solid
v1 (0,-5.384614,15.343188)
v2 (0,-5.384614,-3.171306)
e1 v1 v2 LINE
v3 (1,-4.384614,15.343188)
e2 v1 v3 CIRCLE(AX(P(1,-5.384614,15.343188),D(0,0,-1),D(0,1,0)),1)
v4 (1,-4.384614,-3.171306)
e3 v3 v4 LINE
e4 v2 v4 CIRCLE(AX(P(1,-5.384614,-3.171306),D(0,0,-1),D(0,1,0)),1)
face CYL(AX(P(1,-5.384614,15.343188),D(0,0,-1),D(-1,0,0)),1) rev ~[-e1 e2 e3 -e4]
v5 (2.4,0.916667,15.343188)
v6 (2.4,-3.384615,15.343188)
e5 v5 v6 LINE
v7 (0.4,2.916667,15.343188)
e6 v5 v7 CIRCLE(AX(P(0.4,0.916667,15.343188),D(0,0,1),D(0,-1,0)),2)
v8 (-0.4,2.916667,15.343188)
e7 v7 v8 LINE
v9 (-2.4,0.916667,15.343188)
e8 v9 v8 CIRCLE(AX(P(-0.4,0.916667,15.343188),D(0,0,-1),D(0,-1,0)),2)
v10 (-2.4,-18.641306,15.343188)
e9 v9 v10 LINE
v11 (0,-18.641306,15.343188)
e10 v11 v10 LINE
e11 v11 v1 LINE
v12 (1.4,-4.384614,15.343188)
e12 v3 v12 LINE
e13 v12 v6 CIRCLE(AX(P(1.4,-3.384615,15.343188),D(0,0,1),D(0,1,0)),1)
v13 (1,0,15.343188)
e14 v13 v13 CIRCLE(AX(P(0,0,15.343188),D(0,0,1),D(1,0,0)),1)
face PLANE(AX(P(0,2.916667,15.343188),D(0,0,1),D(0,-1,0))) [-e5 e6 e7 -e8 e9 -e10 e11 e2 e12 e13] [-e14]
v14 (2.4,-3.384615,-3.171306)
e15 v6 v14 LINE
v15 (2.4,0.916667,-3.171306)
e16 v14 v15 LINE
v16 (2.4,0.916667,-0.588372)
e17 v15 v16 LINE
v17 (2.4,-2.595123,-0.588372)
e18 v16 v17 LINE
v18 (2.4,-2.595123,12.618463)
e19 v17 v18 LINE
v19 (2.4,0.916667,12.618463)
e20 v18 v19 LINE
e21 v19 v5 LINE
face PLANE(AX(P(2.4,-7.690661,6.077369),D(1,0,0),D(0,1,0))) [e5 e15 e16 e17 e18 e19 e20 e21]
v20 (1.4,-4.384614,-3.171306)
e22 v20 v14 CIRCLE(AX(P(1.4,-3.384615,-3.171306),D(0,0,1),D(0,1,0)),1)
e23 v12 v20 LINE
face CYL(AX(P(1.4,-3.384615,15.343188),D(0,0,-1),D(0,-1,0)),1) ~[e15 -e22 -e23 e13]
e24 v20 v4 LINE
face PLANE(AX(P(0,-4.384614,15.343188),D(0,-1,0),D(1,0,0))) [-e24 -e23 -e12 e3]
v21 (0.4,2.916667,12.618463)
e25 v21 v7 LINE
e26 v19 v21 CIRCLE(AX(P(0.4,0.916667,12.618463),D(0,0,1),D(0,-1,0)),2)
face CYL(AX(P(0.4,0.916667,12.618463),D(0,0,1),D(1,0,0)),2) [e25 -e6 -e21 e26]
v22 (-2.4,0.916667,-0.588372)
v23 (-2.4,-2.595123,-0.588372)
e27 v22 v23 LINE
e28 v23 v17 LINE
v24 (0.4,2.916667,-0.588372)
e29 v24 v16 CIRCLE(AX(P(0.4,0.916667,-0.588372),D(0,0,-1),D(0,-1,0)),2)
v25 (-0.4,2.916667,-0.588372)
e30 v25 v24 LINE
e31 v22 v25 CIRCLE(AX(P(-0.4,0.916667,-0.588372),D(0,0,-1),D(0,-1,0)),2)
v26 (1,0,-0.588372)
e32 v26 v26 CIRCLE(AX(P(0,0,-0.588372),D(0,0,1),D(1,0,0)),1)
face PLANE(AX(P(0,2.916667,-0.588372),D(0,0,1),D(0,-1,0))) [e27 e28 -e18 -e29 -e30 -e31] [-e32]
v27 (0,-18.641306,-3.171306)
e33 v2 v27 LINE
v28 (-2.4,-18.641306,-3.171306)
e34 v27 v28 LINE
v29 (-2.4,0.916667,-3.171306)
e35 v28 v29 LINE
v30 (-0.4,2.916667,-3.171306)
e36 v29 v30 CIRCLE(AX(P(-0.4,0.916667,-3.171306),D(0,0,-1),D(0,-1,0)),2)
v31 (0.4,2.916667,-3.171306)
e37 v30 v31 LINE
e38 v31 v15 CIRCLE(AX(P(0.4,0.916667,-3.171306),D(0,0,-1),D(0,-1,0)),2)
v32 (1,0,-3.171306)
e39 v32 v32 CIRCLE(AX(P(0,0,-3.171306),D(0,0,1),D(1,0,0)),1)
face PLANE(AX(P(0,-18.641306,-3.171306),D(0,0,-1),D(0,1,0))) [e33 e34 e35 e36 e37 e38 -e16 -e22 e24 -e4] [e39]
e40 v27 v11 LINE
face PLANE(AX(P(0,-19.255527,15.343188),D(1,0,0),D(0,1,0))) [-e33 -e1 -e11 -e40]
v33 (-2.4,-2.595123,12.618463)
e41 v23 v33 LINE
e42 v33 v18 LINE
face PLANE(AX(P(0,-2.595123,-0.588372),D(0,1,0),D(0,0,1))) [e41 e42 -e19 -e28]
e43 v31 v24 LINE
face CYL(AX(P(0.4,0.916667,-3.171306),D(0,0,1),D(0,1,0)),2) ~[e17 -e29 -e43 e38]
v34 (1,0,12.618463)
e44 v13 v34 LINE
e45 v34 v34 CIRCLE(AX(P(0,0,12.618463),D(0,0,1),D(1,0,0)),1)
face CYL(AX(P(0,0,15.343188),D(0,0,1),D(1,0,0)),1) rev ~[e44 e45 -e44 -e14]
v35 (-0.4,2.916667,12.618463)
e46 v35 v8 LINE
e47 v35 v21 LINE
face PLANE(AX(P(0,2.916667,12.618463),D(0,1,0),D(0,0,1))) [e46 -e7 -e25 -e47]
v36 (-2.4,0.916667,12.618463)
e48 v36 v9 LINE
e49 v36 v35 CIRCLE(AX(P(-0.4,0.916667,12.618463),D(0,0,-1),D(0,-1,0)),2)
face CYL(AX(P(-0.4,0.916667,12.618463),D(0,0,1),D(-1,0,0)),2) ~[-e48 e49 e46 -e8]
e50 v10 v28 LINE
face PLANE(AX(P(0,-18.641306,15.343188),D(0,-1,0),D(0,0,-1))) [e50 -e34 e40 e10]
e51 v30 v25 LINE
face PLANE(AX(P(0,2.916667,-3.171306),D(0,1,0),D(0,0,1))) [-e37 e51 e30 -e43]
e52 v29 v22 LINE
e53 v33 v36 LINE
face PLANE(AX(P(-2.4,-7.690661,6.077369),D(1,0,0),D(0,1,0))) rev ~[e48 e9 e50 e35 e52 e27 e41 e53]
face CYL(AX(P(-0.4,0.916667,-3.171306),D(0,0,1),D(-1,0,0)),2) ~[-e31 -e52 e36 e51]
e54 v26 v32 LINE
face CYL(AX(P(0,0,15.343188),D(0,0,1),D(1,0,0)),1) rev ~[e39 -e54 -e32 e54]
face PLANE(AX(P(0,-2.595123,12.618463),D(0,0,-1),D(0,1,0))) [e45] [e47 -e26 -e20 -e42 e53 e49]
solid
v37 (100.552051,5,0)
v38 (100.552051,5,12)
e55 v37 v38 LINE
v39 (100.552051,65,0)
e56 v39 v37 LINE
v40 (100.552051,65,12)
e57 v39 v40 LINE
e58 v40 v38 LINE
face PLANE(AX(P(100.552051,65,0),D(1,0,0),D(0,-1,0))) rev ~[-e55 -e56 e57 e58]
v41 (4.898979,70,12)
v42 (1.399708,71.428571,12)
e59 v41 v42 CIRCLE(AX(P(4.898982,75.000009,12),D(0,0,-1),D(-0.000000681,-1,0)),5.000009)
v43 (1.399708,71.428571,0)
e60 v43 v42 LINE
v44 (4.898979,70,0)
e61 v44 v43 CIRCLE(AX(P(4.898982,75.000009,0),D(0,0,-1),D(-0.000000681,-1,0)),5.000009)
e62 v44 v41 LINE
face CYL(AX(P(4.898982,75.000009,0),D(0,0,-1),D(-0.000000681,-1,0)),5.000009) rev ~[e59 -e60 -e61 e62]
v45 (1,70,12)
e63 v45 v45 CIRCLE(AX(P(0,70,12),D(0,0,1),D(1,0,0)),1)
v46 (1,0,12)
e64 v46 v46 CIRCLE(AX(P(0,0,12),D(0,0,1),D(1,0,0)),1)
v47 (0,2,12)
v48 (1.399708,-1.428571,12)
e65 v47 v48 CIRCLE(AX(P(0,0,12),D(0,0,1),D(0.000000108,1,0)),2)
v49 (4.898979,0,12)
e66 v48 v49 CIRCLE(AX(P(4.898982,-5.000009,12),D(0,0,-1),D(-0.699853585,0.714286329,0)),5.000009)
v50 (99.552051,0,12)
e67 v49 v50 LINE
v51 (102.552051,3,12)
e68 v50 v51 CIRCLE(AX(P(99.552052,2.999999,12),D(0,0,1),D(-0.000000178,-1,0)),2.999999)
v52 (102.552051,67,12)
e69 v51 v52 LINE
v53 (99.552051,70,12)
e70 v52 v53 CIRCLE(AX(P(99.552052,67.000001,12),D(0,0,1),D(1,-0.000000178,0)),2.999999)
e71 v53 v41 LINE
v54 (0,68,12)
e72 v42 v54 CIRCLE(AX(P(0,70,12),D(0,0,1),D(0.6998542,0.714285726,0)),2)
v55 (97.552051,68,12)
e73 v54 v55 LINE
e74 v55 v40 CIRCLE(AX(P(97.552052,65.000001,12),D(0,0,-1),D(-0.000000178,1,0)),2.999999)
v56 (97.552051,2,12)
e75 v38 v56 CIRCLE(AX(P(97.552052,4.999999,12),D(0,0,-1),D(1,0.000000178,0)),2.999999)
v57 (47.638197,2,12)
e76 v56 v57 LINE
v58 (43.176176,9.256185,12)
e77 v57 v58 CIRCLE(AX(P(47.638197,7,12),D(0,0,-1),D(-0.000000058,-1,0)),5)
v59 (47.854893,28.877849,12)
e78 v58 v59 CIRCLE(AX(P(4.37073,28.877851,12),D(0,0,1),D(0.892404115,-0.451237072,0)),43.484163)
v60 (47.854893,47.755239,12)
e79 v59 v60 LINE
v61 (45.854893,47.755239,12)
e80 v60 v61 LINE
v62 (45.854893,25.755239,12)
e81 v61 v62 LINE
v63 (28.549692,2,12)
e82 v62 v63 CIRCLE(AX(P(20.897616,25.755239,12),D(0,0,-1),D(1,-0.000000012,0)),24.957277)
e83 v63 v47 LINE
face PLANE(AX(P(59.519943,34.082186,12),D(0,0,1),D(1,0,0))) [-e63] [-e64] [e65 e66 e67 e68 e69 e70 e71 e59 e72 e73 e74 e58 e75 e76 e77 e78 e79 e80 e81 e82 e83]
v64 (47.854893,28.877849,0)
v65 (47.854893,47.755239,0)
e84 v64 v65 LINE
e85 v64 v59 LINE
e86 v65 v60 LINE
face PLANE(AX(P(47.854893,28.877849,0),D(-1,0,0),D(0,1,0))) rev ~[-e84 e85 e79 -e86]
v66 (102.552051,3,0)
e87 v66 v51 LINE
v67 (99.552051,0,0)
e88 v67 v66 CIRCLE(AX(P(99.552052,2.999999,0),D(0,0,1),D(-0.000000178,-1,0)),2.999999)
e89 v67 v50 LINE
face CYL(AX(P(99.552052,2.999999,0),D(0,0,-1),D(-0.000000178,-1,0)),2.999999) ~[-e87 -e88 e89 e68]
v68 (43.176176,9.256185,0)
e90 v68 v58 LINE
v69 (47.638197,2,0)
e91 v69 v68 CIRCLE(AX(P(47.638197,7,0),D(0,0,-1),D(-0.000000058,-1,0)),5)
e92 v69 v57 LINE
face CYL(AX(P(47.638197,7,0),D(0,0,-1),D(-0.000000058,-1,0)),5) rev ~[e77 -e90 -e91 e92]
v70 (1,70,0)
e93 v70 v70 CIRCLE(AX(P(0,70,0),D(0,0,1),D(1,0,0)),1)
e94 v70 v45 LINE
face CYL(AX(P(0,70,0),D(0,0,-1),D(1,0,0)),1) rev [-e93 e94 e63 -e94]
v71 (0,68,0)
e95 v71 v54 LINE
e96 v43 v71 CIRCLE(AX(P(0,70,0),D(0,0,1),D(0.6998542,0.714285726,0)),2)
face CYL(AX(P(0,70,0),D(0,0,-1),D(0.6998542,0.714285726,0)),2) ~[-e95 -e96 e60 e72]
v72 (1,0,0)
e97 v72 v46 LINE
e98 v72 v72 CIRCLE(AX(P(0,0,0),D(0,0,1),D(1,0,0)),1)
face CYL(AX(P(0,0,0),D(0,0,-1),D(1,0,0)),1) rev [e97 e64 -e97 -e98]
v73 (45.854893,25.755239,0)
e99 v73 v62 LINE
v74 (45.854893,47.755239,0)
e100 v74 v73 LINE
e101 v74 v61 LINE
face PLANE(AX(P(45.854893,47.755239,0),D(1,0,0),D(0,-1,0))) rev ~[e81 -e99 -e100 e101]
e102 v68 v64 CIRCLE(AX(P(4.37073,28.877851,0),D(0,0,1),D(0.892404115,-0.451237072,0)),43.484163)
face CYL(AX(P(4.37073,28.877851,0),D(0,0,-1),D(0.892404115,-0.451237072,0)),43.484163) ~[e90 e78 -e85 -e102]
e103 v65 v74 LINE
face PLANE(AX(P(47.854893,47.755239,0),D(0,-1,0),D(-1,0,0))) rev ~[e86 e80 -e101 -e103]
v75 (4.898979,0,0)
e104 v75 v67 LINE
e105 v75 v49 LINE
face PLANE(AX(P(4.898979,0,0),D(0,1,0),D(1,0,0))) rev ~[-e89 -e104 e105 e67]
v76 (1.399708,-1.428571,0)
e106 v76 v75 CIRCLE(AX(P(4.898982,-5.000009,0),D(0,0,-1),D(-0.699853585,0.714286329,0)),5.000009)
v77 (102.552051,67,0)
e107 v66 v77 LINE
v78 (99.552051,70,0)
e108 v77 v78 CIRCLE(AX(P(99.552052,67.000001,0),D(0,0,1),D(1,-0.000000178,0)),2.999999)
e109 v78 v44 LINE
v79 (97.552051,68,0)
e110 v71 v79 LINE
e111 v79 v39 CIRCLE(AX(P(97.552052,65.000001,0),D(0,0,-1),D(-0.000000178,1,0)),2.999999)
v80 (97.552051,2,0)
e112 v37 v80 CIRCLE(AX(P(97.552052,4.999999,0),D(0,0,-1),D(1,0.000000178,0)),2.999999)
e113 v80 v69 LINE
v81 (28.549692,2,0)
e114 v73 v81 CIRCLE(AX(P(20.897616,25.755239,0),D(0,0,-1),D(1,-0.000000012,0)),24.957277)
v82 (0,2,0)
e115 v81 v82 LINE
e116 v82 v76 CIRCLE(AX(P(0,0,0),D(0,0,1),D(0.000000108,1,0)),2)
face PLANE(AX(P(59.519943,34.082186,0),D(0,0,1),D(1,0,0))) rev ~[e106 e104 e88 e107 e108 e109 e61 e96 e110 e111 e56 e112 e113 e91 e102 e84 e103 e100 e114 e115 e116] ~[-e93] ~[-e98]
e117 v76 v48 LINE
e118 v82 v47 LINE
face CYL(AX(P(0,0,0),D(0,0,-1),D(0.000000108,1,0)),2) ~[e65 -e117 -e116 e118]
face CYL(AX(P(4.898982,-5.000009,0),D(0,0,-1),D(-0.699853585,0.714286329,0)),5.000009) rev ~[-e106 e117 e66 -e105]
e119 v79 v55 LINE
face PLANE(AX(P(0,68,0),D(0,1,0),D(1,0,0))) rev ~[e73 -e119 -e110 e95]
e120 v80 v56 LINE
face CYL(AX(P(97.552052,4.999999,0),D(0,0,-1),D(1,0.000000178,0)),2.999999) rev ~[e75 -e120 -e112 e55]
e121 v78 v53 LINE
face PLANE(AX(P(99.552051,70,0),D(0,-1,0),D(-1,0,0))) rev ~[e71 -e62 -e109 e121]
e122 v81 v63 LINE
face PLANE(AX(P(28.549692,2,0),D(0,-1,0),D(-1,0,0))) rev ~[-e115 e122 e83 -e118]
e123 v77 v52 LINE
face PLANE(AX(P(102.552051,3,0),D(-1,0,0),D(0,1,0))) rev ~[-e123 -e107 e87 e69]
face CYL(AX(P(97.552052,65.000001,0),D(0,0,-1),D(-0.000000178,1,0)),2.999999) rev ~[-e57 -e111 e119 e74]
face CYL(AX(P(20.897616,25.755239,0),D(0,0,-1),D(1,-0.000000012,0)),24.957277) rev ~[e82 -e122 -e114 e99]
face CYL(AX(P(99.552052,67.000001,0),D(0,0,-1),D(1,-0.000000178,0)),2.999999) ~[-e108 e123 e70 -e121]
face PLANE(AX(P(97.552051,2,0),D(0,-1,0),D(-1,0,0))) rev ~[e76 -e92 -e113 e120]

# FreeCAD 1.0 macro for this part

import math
import FreeCAD as App
import Part
import Sketcher
from FreeCAD import Vector
Q = App.Units.Quantity


def edges_at(feature, points):
    """Names of the edges that pass closest to the given points."""
    edges = feature.Shape.Edges
    near = lambda p: min(range(len(edges)), key=lambda i: edges[i].distToShape(Part.Vertex(*p))[0])
    return sorted({f"Edge{near(p) + 1}" for p in points})


def add_polygon(sketch, points):
    """Adds a closed chain of lines whose ends are joined by coincident constraints."""
    first, n = sketch.GeometryCount, len(points)
    for a, b in zip(points, points[1:] + points[:1]):
        sketch.addGeometry(Part.LineSegment(App.Vector(*a, 0), App.Vector(*b, 0)), False)
    for i in range(n):
        sketch.addConstraint(Sketcher.Constraint("Coincident", first + i, 2, first + (i + 1) % n, 1))

doc = App.newDocument("Part")
body = doc.addObject("PartDesign::Body", "Body")

sketch1 = doc.addObject("Sketcher::SketchObject", "Sketch")
body.addObject(sketch1)
sketch1.AttachmentSupport = (doc.XY_Plane, [""])
sketch1.MapMode = "FlatFace"
sketch1.addGeometry([
    Part.LineSegment(Vector(28.5, 2, 0), Vector(0, 2, 0)),
    Part.ArcOfCircle(Part.Circle(Vector(0, 0, 0), Vector(0, 0, 1), 2), math.radians(90), math.radians(314)),
    Part.ArcOfCircle(Part.Circle(Vector(4.9, -5, 0), Vector(0, 0, 1), 5), math.radians(90), math.radians(134)),
    Part.LineSegment(Vector(4.9, 0, 0), Vector(99.6, 0, 0)),
    Part.ArcOfCircle(Part.Circle(Vector(99.6, 3, 0), Vector(0, 0, 1), 3), math.radians(-90), math.radians(0)),
    Part.LineSegment(Vector(102.6, 3, 0), Vector(102.6, 67, 0)),
    Part.ArcOfCircle(Part.Circle(Vector(99.6, 67, 0), Vector(0, 0, 1), 3), math.radians(0), math.radians(90)),
    Part.LineSegment(Vector(99.6, 70, 0), Vector(4.9, 70, 0)),
    Part.ArcOfCircle(Part.Circle(Vector(4.9, 75, 0), Vector(0, 0, 1), 5), math.radians(-134), math.radians(-90)),
    Part.ArcOfCircle(Part.Circle(Vector(0, 70, 0), Vector(0, 0, 1), 2), math.radians(46), math.radians(270)),
    Part.LineSegment(Vector(0, 68, 0), Vector(97.6, 68, 0)),
    Part.ArcOfCircle(Part.Circle(Vector(97.6, 65, 0), Vector(0, 0, 1), 3), math.radians(0), math.radians(90)),
    Part.LineSegment(Vector(100.6, 65, 0), Vector(100.6, 5, 0)),
    Part.ArcOfCircle(Part.Circle(Vector(97.6, 5, 0), Vector(0, 0, 1), 3), math.radians(-90), math.radians(0)),
    Part.LineSegment(Vector(97.6, 2, 0), Vector(47.6, 2, 0)),
    Part.ArcOfCircle(Part.Circle(Vector(47.6, 7, 0), Vector(0, 0, 1), 5), math.radians(153), math.radians(270)),
    Part.ArcOfCircle(Part.Circle(Vector(4.4, 28.9, 0), Vector(0, 0, 1), 43.5), math.radians(-27), math.radians(0)),
    Part.LineSegment(Vector(47.9, 28.9, 0), Vector(47.9, 47.8, 0)),
    Part.LineSegment(Vector(47.9, 47.8, 0), Vector(45.9, 47.8, 0)),
    Part.LineSegment(Vector(45.9, 47.8, 0), Vector(45.9, 25.8, 0)),
    Part.ArcOfCircle(Part.Circle(Vector(20.9, 25.8, 0), Vector(0, 0, 1), 25), math.radians(-72), math.radians(0)),
    Part.Circle(Vector(0, 0, 0), Vector(0, 0, 1), 1),
    Part.Circle(Vector(0, 70, 0), Vector(0, 0, 1), 1),
], False)
sketch1.addConstraint([
    Sketcher.Constraint("Tangent", 0, 2, 1, 1),
    Sketcher.Constraint("Tangent", 1, 2, 2, 2),
    Sketcher.Constraint("Tangent", 2, 1, 3, 1),
    Sketcher.Constraint("Tangent", 3, 2, 4, 1),
    Sketcher.Constraint("Tangent", 4, 2, 5, 1),
    Sketcher.Constraint("Tangent", 5, 2, 6, 1),
    Sketcher.Constraint("Tangent", 6, 2, 7, 1),
    Sketcher.Constraint("Tangent", 7, 2, 8, 2),
    Sketcher.Constraint("Tangent", 8, 1, 9, 1),
    Sketcher.Constraint("Tangent", 9, 2, 10, 1),
    Sketcher.Constraint("Tangent", 10, 2, 11, 2),
    Sketcher.Constraint("Tangent", 11, 1, 12, 1),
    Sketcher.Constraint("Tangent", 12, 2, 13, 2),
    Sketcher.Constraint("Tangent", 13, 1, 14, 1),
    Sketcher.Constraint("Tangent", 14, 2, 15, 2),
    Sketcher.Constraint("Tangent", 15, 1, 16, 1),
    Sketcher.Constraint("Tangent", 16, 2, 17, 1),
    Sketcher.Constraint("Coincident", 17, 2, 18, 1),
    Sketcher.Constraint("Coincident", 18, 2, 19, 1),
    Sketcher.Constraint("Tangent", 19, 2, 20, 2),
    Sketcher.Constraint("Coincident", 20, 1, 0, 1),
    Sketcher.Constraint("Horizontal", 0),
    Sketcher.Constraint("Horizontal", 3),
    Sketcher.Constraint("Vertical", 5),
    Sketcher.Constraint("Horizontal", 7),
    Sketcher.Constraint("Horizontal", 10),
    Sketcher.Constraint("Vertical", 12),
    Sketcher.Constraint("Horizontal", 14),
    Sketcher.Constraint("Vertical", 17),
    Sketcher.Constraint("Horizontal", 18),
    Sketcher.Constraint("Vertical", 19),
    Sketcher.Constraint("Coincident", 1, 3, -1, 1),
    Sketcher.Constraint("Coincident", 21, 3, -1, 1),
    Sketcher.Constraint("Coincident", 22, 3, 9, 3),
    Sketcher.Constraint("Equal", 4, 6),
    Sketcher.Constraint("Equal", 2, 8),
    Sketcher.Constraint("Equal", 1, 9),
    Sketcher.Constraint("Equal", 6, 11),
    Sketcher.Constraint("Equal", 11, 13),
    Sketcher.Constraint("Equal", 21, 22),
    Sketcher.Constraint("PointOnObject", 9, 3, -2),
    Sketcher.Constraint("PointOnObject", 2, 1, -1),
    Sketcher.Constraint("Horizontal", 22, 3, 6, 2),
    Sketcher.Constraint("Horizontal", 0, 2, 13, 1),
    Sketcher.Constraint("Diameter", 21, Q("2 mm")),
    Sketcher.Constraint("Radius", 1, Q("2 mm")),
    Sketcher.Constraint("Radius", 4, Q("2.999999 mm")),
    Sketcher.Constraint("Radius", 15, Q("5 mm")),
    Sketcher.Constraint("DistanceX", 18, 2, 18, 1, Q("2 mm")),
    Sketcher.Constraint("DistanceY", 5, 1, 5, 2, Q("64 mm")),
    Sketcher.Constraint("DistanceY", 19, 2, 19, 1, Q("22 mm")),
    Sketcher.Constraint("DistanceX", 11, 3, 6, 3, Q("2 mm")),
    Sketcher.Constraint("Radius", 2, Q("5.000009 mm")),
    Sketcher.Constraint("Radius", 16, Q("43.484163 mm")),
    Sketcher.Constraint("Radius", 20, Q("24.957277 mm")),
    Sketcher.Constraint("DistanceX", 10, 1, 10, 2, Q("97.552051 mm")),
    Sketcher.Constraint("DistanceY", 17, 1, 17, 2, Q("18.87739 mm")),
    Sketcher.Constraint("DistanceX", 0, 2, 0, 1, Q("28.549692 mm")),
    Sketcher.Constraint("DistanceX", 14, 2, 14, 1, Q("49.913854 mm")),
])
pad1 = doc.addObject("PartDesign::Pad", "Pad")
body.addObject(pad1)
pad1.Profile = sketch1
pad1.Length = 12
body2 = doc.addObject("PartDesign::Body", "Body001")

sketch2 = doc.addObject("Sketcher::SketchObject", "Sketch001")
body2.addObject(sketch2)
sketch2.AttachmentSupport = (doc.getObject("YZ_Plane001"), [""])
sketch2.MapMode = "FlatFace"
add_polygon(sketch2, [(-18.6, -3.2), (2.9, -3.2), (2.9, -0.6), (-2.6, -0.6), (-2.6, 12.6), (2.9, 12.6), (2.9, 15.3), (-18.6, 15.3)])
sketch2.addConstraint([
    Sketcher.Constraint("Horizontal", 0),
    Sketcher.Constraint("Vertical", 1),
    Sketcher.Constraint("Horizontal", 2),
    Sketcher.Constraint("Vertical", 3),
    Sketcher.Constraint("Horizontal", 4),
    Sketcher.Constraint("Vertical", 5),
    Sketcher.Constraint("Horizontal", 6),
    Sketcher.Constraint("Vertical", 7),
    Sketcher.Constraint("Vertical", 1, 2, 4, 2),
    Sketcher.Constraint("DistanceX", 2, 2, 2, 1, Q("5.51179 mm")),
    Sketcher.Constraint("DistanceX", 0, 1, 0, 2, Q("21.557973 mm")),
    Sketcher.Constraint("DistanceY", 1, 1, 1, 2, Q("2.582934 mm")),
    Sketcher.Constraint("DistanceY", 3, 1, 3, 2, Q("13.206835 mm")),
    Sketcher.Constraint("DistanceY", 5, 1, 5, 2, Q("2.724725 mm")),
    Sketcher.Constraint("DistanceX", -1, 1, 0, 2, Q("2.916667 mm")),
    Sketcher.Constraint("DistanceY", 0, 2, -1, 1, Q("3.171306 mm")),
])
pad2 = doc.addObject("PartDesign::Pad", "Pad001")
body2.addObject(pad2)
pad2.Profile = sketch2
pad2.Length = 4.8
pad2.Midplane = True

sketch3 = doc.addObject("Sketcher::SketchObject", "Sketch002")
body2.addObject(sketch3)
sketch3.AttachmentSupport = (doc.getObject("XY_Plane001"), [""])
sketch3.MapMode = "FlatFace"
sketch3.AttachmentOffset = App.Placement(Vector(0, 0, 15.343188), App.Rotation())
sketch3.addGeometry(Part.Circle(Vector(0, 0, 0), Vector(0, 0, 1), 1), False)
sketch3.addConstraint([
    Sketcher.Constraint("Coincident", 0, 3, -1, 1),
    Sketcher.Constraint("Diameter", 0, Q("2 mm")),
])
pocket1 = doc.addObject("PartDesign::Pocket", "Pocket")
body2.addObject(pocket1)
pocket1.Profile = sketch3
pocket1.Length = 25
doc.recompute()

fillet = doc.addObject("PartDesign::Fillet", "Fillet")
body2.addObject(fillet)
fillet.Base = (pocket1, edges_at(pocket1, [
    (-2.4, 2.917, -1.88),
    (2.4, 2.917, -1.88),
    (-2.4, 2.917, 13.981),
    (2.4, 2.917, 13.981),
]))
fillet.Radius = 2

sketch4 = doc.addObject("Sketcher::SketchObject", "Sketch003")
body2.addObject(sketch4)
sketch4.AttachmentSupport = (doc.getObject("XY_Plane001"), [""])
sketch4.MapMode = "FlatFace"
sketch4.AttachmentOffset = App.Placement(Vector(0, 0, 15.343188), App.Rotation())
add_polygon(sketch4, [(0, -4.4), (0, -19.3), (3, -19.3), (3, -4.4)])
sketch4.addConstraint([
    Sketcher.Constraint("Vertical", 0),
    Sketcher.Constraint("Horizontal", 1),
    Sketcher.Constraint("Vertical", 2),
    Sketcher.Constraint("Horizontal", 3),
    Sketcher.Constraint("PointOnObject", 0, 2, -2),
    Sketcher.Constraint("DistanceX", 1, 1, 1, 2, Q("2.983586 mm")),
    Sketcher.Constraint("DistanceY", 0, 2, 0, 1, Q("14.870913 mm")),
    Sketcher.Constraint("DistanceY", 0, 2, -1, 1, Q("19.255527 mm")),
])
pocket2 = doc.addObject("PartDesign::Pocket", "Pocket001")
body2.addObject(pocket2)
pocket2.Profile = sketch4
pocket2.Length = 25
doc.recompute()

fillet2 = doc.addObject("PartDesign::Fillet", "Fillet001")
body2.addObject(fillet2)
fillet2.Base = (pocket2, edges_at(pocket2, [(2.4, -4.385, 6.086), (0, -4.385, 6.086)]))
fillet2.Radius = 1

doc.recompute()
